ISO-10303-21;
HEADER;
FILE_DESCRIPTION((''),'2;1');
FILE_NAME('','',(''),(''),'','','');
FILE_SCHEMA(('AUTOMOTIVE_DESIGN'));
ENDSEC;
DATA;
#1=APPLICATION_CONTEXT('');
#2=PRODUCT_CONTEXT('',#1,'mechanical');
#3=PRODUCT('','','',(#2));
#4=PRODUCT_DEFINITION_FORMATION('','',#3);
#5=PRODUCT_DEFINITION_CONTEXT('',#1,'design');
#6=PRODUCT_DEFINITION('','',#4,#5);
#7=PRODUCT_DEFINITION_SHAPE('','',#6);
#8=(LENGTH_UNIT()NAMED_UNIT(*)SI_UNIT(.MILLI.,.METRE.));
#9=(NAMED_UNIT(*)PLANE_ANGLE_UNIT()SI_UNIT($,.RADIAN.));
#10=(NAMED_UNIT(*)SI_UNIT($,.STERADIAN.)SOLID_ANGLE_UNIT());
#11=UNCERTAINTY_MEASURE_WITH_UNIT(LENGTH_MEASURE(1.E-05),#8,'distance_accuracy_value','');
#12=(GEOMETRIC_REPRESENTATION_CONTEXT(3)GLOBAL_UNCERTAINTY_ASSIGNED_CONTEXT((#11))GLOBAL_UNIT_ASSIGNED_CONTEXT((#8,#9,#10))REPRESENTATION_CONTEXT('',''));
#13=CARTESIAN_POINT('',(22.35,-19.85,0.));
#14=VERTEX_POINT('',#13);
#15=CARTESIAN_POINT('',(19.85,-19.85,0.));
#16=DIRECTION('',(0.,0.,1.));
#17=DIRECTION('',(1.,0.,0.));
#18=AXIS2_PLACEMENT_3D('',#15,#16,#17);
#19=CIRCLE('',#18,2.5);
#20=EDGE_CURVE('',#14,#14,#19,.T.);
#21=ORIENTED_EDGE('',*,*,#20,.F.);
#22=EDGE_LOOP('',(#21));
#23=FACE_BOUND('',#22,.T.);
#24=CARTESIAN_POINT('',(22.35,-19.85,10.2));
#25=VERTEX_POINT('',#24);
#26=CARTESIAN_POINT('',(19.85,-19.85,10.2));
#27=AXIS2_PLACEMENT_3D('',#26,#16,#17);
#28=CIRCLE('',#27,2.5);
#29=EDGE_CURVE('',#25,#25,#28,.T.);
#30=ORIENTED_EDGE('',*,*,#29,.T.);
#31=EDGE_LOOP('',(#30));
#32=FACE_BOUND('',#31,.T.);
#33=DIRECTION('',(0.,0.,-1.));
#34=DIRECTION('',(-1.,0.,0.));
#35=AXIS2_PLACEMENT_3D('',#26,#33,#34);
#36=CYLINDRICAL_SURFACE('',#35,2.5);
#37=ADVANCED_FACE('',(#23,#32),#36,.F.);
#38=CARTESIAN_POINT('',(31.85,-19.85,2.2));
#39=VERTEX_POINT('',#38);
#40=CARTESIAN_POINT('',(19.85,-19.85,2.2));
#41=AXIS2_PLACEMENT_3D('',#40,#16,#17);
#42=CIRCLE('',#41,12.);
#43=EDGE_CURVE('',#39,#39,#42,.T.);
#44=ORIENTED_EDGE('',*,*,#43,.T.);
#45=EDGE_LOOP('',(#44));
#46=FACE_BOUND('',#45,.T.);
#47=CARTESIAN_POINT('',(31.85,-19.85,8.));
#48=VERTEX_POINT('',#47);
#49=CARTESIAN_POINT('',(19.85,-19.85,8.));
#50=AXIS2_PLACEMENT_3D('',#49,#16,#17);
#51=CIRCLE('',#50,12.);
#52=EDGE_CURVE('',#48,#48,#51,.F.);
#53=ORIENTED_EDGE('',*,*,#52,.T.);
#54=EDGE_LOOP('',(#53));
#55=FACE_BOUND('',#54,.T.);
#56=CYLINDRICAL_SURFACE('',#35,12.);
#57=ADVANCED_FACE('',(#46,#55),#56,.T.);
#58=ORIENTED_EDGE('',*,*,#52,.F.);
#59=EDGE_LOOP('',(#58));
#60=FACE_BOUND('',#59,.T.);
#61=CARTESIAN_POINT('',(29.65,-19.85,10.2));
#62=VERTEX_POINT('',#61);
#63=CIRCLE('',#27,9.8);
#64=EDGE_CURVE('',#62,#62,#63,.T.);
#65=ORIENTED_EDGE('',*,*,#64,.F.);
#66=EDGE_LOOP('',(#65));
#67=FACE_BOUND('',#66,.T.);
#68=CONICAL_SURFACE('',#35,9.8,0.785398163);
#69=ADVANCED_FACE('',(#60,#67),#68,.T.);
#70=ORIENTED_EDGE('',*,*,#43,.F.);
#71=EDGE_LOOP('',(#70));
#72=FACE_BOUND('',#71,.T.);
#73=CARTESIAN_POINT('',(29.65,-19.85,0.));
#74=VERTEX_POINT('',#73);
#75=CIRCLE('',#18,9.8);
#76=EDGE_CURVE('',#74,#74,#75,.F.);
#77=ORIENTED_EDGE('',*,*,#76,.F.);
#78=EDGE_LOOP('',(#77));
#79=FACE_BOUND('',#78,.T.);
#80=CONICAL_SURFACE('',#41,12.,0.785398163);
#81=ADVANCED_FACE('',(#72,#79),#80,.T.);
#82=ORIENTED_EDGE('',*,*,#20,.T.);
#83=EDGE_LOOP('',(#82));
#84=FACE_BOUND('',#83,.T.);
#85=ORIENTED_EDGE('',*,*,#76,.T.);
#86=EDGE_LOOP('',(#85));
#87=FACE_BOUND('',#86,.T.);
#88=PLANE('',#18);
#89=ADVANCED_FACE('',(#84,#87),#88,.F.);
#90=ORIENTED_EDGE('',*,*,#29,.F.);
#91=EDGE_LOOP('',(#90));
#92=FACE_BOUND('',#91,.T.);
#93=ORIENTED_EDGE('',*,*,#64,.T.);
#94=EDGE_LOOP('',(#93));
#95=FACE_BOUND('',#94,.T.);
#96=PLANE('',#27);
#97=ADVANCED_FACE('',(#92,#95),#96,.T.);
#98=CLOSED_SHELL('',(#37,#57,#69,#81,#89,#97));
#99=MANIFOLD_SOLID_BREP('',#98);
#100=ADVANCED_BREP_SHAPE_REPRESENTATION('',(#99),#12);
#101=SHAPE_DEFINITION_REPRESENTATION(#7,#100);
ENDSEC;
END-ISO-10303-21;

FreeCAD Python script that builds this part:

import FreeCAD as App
import Part
import Sketcher

V = App.Vector


def edges_at(feature, points):
    """Names of the edges that pass closest to the given points."""
    edges = feature.Shape.Edges
    near = lambda p: min(range(len(edges)), key=lambda i: edges[i].distToShape(Part.Vertex(*p))[0])
    return sorted({f"Edge{near(p) + 1}" for p in points})

doc = App.newDocument("Part")
body = doc.addObject("PartDesign::Body", "Body")

# Sketch on XY plane
sketch1 = doc.addObject("Sketcher::SketchObject", "Sketch")
body.addObject(sketch1)
sketch1.AttachmentSupport = (doc.XY_Plane, [""])
sketch1.MapMode = "FlatFace"
sketch1.addGeometry(Part.Circle(V(19.85, -19.85, 0), V(0, 0, 1), 12), False)
sketch1.addGeometry(Part.Circle(V(19.85, -19.85, 0), V(0, 0, 1), 2.5), False)
sketch1.addConstraint(Sketcher.Constraint("Coincident", 1, 3, 0, 3))
sketch1.addConstraint(Sketcher.Constraint("Diameter", 0, 24.0))
sketch1.addConstraint(Sketcher.Constraint("Diameter", 1, 5.0))
sketch1.addConstraint(Sketcher.Constraint("DistanceX", -1, 1, 0, 3, 19.85))
sketch1.addConstraint(Sketcher.Constraint("DistanceY", 0, 3, -1, 1, 19.85))
pad1 = doc.addObject("PartDesign::Pad", "Pad")
body.addObject(pad1)
pad1.Profile = sketch1
pad1.Length = 10.2
doc.recompute()

chamfer = doc.addObject("PartDesign::Chamfer", "Chamfer")
body.addObject(chamfer)
chamfer.Base = (pad1, edges_at(pad1, [(7.85, -19.85, 0), (7.85, -19.85, 10.2)]))
chamfer.Size = 2.2

doc.recompute()
